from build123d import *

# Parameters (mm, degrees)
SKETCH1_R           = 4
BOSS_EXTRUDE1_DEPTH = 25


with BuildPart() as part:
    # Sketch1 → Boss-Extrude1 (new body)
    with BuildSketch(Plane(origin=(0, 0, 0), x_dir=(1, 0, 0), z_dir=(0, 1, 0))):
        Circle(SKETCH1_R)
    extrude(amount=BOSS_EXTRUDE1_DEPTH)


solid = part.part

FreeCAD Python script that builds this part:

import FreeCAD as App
import Part
import Sketcher

doc = App.newDocument("Part")
body = doc.addObject("PartDesign::Body", "Body")

sketch1 = body.newObject("Sketcher::SketchObject", "Sketch")
sketch1.AttachmentSupport = (doc.getObject("XZ_Plane"), [""])
sketch1.MapMode = "FlatFace"
sketch1.addGeometry(Part.Circle(App.Vector(0, 0, 0), App.Vector(0, 0, 1), 4), False)
sketch1.addConstraint(Sketcher.Constraint("Coincident", 0, 3, -1, 1))
sketch1.addConstraint(Sketcher.Constraint("Diameter", 0, 8.0))
pad1 = body.newObject("PartDesign::Pad", "Pad")
pad1.Profile = sketch1
pad1.Length = 25
pad1.Reversed = True

doc.recompute()
